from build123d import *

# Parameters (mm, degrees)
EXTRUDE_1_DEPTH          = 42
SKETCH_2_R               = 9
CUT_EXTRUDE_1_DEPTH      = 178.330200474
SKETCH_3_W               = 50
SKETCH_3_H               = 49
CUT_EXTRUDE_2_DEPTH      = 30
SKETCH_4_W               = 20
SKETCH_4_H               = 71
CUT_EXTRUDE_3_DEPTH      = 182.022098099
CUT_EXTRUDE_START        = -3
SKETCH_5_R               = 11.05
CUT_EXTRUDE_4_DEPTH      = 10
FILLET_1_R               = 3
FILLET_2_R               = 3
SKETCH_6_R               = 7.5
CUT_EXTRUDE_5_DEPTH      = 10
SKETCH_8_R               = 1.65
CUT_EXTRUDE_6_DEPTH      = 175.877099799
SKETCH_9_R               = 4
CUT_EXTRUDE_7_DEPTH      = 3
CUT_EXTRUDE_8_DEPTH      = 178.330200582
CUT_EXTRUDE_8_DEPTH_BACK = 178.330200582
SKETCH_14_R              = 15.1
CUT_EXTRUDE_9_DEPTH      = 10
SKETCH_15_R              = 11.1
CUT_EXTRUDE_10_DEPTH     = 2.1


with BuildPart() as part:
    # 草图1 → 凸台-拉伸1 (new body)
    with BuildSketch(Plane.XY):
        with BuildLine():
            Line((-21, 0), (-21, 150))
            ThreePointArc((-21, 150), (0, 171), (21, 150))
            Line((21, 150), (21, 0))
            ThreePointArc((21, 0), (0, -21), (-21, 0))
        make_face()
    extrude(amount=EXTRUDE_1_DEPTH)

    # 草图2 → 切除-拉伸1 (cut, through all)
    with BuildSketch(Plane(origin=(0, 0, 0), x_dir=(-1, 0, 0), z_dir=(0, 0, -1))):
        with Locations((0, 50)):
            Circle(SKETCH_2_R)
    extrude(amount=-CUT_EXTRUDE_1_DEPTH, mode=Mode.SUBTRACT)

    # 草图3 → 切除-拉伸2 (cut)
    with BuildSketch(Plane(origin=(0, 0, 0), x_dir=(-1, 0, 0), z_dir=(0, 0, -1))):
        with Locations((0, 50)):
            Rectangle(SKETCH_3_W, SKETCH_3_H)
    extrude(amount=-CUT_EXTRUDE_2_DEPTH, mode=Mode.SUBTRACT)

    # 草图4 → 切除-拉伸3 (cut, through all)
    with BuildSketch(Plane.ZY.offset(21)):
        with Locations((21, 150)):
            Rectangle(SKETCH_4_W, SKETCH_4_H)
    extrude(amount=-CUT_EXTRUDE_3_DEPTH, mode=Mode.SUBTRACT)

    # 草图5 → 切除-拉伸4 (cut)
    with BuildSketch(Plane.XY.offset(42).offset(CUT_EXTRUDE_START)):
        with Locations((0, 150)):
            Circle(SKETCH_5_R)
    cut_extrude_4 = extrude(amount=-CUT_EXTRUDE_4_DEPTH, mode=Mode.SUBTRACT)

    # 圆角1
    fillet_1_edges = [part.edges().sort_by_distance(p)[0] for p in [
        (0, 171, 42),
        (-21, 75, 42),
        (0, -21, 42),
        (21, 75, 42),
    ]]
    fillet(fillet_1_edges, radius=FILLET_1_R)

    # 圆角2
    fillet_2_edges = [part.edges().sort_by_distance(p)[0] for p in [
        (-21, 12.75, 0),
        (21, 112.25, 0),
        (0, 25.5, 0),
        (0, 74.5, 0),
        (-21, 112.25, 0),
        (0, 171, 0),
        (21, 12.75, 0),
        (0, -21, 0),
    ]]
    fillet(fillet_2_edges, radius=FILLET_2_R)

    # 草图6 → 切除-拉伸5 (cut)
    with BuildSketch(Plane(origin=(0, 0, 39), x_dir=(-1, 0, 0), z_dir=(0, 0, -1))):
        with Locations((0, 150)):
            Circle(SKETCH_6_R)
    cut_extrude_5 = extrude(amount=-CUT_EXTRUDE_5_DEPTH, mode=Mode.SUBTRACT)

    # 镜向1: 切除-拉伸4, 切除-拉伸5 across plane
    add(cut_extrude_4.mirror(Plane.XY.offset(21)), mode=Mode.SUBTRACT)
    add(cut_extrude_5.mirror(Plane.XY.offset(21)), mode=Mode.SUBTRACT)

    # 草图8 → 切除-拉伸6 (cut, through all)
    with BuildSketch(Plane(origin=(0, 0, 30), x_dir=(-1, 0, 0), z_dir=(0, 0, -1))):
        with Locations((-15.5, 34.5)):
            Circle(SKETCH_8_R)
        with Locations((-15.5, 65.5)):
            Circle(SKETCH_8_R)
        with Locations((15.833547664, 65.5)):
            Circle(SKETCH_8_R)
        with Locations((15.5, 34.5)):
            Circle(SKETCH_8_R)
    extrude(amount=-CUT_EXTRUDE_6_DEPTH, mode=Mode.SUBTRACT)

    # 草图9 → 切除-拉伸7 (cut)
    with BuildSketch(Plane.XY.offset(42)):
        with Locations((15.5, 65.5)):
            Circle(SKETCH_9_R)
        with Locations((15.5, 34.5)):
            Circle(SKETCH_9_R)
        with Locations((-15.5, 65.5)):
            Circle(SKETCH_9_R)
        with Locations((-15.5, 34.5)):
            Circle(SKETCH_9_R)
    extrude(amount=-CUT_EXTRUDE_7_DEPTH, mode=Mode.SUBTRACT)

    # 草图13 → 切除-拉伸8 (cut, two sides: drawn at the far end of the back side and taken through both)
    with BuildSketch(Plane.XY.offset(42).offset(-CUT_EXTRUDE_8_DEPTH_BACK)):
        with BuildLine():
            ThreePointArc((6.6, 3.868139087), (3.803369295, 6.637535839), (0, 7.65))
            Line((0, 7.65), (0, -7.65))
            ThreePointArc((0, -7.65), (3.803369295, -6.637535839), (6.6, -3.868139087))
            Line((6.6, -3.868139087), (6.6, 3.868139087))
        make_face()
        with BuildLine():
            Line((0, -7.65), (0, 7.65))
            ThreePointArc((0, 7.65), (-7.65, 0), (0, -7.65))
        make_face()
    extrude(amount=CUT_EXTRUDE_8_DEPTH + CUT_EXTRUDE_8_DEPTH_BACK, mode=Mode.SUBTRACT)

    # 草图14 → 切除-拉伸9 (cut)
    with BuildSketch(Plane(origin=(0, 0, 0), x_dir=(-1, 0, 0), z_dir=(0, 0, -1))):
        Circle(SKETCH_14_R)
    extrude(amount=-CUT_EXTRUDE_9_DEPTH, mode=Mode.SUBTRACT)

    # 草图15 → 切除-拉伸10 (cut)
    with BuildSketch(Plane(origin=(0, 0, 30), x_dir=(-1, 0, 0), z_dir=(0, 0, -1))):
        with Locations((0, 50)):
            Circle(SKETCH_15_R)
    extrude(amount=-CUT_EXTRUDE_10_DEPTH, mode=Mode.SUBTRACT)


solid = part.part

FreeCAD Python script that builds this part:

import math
import FreeCAD as App
import Part
import Sketcher
Q = App.Units.Quantity


def edges_at(feature, points):
    """Names of the edges that pass closest to the given points."""
    edges = feature.Shape.Edges
    near = lambda p: min(range(len(edges)), key=lambda i: edges[i].distToShape(Part.Vertex(*p))[0])
    return sorted({f"Edge{near(p) + 1}" for p in points})


def add_polygon(sketch, points):
    """Adds a closed chain of lines whose ends are joined by coincident constraints."""
    first, n = sketch.GeometryCount, len(points)
    for a, b in zip(points, points[1:] + points[:1]):
        sketch.addGeometry(Part.LineSegment(App.Vector(*a, 0), App.Vector(*b, 0)), False)
    for i in range(n):
        sketch.addConstraint(Sketcher.Constraint("Coincident", first + i, 2, first + (i + 1) % n, 1))

doc = App.newDocument("Part")
body = doc.addObject("PartDesign::Body", "Body")

sketch1 = body.newObject("Sketcher::SketchObject", "Sketch")
sketch1.AttachmentSupport = (doc.getObject("XY_Plane"), [""])
sketch1.MapMode = "FlatFace"
sketch1.addGeometry([
    Part.LineSegment(App.Vector(-21, 150, 0), App.Vector(-21, 0, 0)),
    Part.ArcOfCircle(Part.Circle(App.Vector(0, 0, 0), App.Vector(0, 0, 1), 21), math.radians(180), math.radians(360)),
    Part.LineSegment(App.Vector(21, 0, 0), App.Vector(21, 150, 0)),
    Part.ArcOfCircle(Part.Circle(App.Vector(0, 150, 0), App.Vector(0, 0, 1), 21), math.radians(0), math.radians(180)),
], False)
sketch1.addConstraint([
    Sketcher.Constraint("Tangent", 0, 2, 1, 1),
    Sketcher.Constraint("Tangent", 1, 2, 2, 1),
    Sketcher.Constraint("Tangent", 2, 2, 3, 1),
    Sketcher.Constraint("Tangent", 3, 2, 0, 1),
    Sketcher.Constraint("Vertical", 0),
    Sketcher.Constraint("Vertical", 2),
    Sketcher.Constraint("Coincident", 1, 3, -1, 1),
    Sketcher.Constraint("Radius", 1, Q("21 mm")),
    Sketcher.Constraint("DistanceY", 0, 2, 0, 1, Q("150 mm")),
])
pad1 = body.newObject("PartDesign::Pad", "Pad")
pad1.Profile = sketch1
pad1.Length = 42

sketch2 = body.newObject("Sketcher::SketchObject", "Sketch001")
sketch2.AttachmentSupport = (doc.getObject("XY_Plane"), [""])
sketch2.MapMode = "FlatFace"
sketch2.addGeometry(Part.Circle(App.Vector(0, 50, 0), App.Vector(0, 0, 1), 9), False)
sketch2.addConstraint([
    Sketcher.Constraint("PointOnObject", 0, 3, -2),
    Sketcher.Constraint("Diameter", 0, Q("18 mm")),
    Sketcher.Constraint("DistanceY", -1, 1, 0, 3, Q("50 mm")),
])
pocket1 = body.newObject("PartDesign::Pocket", "Pocket")
pocket1.Profile = sketch2
pocket1.Type = "ThroughAll"
pocket1.Reversed = True

sketch3 = body.newObject("Sketcher::SketchObject", "Sketch002")
sketch3.AttachmentSupport = (doc.getObject("XY_Plane"), [""])
sketch3.MapMode = "FlatFace"
add_polygon(sketch3, [(25, 74.5), (25, 25.5), (-25, 25.5), (-25, 74.5)])
sketch3.addConstraint([
    Sketcher.Constraint("Vertical", 0),
    Sketcher.Constraint("Horizontal", 1),
    Sketcher.Constraint("Vertical", 2),
    Sketcher.Constraint("Horizontal", 3),
    Sketcher.Constraint("DistanceX", 1, 2, 1, 1, Q("50 mm")),
    Sketcher.Constraint("DistanceY", 0, 2, 0, 1, Q("49 mm")),
    Sketcher.Constraint("DistanceX", -1, 1, 0, 2, Q("25 mm")),
    Sketcher.Constraint("DistanceY", -1, 1, 0, 2, Q("25.5 mm")),
])
pocket2 = body.newObject("PartDesign::Pocket", "Pocket001")
pocket2.Profile = sketch3
pocket2.Length = 30
pocket2.Reversed = True

sketch4 = body.newObject("Sketcher::SketchObject", "Sketch003")
sketch4.AttachmentSupport = (doc.getObject("YZ_Plane"), [""])
sketch4.MapMode = "FlatFace"
sketch4.AttachmentOffset = App.Placement(App.Vector(0, 0, -21), App.Rotation())
add_polygon(sketch4, [(185.5, 11), (114.5, 11), (114.5, 31), (185.5, 31)])
sketch4.addConstraint([
    Sketcher.Constraint("Horizontal", 0),
    Sketcher.Constraint("Vertical", 1),
    Sketcher.Constraint("Horizontal", 2),
    Sketcher.Constraint("Vertical", 3),
    Sketcher.Constraint("DistanceX", 0, 2, 0, 1, Q("71 mm")),
    Sketcher.Constraint("DistanceY", 1, 1, 1, 2, Q("20 mm")),
    Sketcher.Constraint("DistanceY", -1, 1, 0, 2, Q("11 mm")),
    Sketcher.Constraint("DistanceX", -1, 1, 0, 2, Q("114.5 mm")),
])
pocket3 = body.newObject("PartDesign::Pocket", "Pocket002")
pocket3.Profile = sketch4
pocket3.Type = "ThroughAll"
pocket3.Reversed = True

sketch5 = body.newObject("Sketcher::SketchObject", "Sketch004")
sketch5.AttachmentSupport = (doc.getObject("XY_Plane"), [""])
sketch5.MapMode = "FlatFace"
sketch5.AttachmentOffset = App.Placement(App.Vector(0, 0, 39), App.Rotation())
sketch5.addGeometry(Part.Circle(App.Vector(0, 150, 0), App.Vector(0, 0, 1), 11.05), False)
sketch5.addConstraint([
    Sketcher.Constraint("PointOnObject", 0, 3, -2),
    Sketcher.Constraint("Diameter", 0, Q("22.1 mm")),
    Sketcher.Constraint("DistanceY", -1, 1, 0, 3, Q("150 mm")),
])
pocket4 = body.newObject("PartDesign::Pocket", "Pocket003")
pocket4.Profile = sketch5
pocket4.Length = 10
doc.recompute()

fillet = body.newObject("PartDesign::Fillet", "Fillet")
fillet.Base = (pocket4, edges_at(pocket4, [
    (0, 171, 42),
    (-21, 75, 42),
    (0, -21, 42),
    (21, 75, 42),
]))
fillet.Radius = 3
doc.recompute()

fillet2 = body.newObject("PartDesign::Fillet", "Fillet001")
fillet2.Base = (fillet, edges_at(fillet, [
    (-21, 12.75, 0),
    (21, 112.25, 0),
    (0, 25.5, 0),
    (0, 74.5, 0),
    (-21, 112.25, 0),
    (0, 171, 0),
    (21, 12.75, 0),
    (0, -21, 0),
]))
fillet2.Radius = 3

sketch6 = body.newObject("Sketcher::SketchObject", "Sketch005")
sketch6.AttachmentSupport = (doc.getObject("XY_Plane"), [""])
sketch6.MapMode = "FlatFace"
sketch6.AttachmentOffset = App.Placement(App.Vector(0, 0, 39), App.Rotation())
sketch6.addGeometry(Part.Circle(App.Vector(0, 150, 0), App.Vector(0, 0, 1), 7.5), False)
sketch6.addConstraint([
    Sketcher.Constraint("PointOnObject", 0, 3, -2),
    Sketcher.Constraint("Diameter", 0, Q("15 mm")),
    Sketcher.Constraint("DistanceY", -1, 1, 0, 3, Q("150 mm")),
])
pocket5 = body.newObject("PartDesign::Pocket", "Pocket004")
pocket5.Profile = sketch6
pocket5.Length = 10
pocket5.Reversed = True
doc.recompute()

datumplane = body.newObject("PartDesign::Plane", "DatumPlane")
datumplane.AttachmentSupport = (doc.getObject("XY_Plane"), [""])
datumplane.MapMode = "FlatFace"
datumplane.AttachmentOffset = App.Placement(App.Vector(0, 0, 21), App.Rotation())
mirrored = body.newObject("PartDesign::Mirrored", "Mirrored")
mirrored.Originals = [pocket4, pocket5]
mirrored.MirrorPlane = (datumplane, [""])
body.Tip = mirrored

sketch7 = body.newObject("Sketcher::SketchObject", "Sketch006")
sketch7.AttachmentSupport = (doc.getObject("XY_Plane"), [""])
sketch7.MapMode = "FlatFace"
sketch7.AttachmentOffset = App.Placement(App.Vector(0, 0, 30), App.Rotation())
sketch7.addGeometry([
    Part.Circle(App.Vector(15.5, 34.5, 0), App.Vector(0, 0, 1), 1.65),
    Part.Circle(App.Vector(15.5, 65.5, 0), App.Vector(0, 0, 1), 1.65),
    Part.Circle(App.Vector(-15.833548, 65.5, 0), App.Vector(0, 0, 1), 1.65),
    Part.Circle(App.Vector(-15.5, 34.5, 0), App.Vector(0, 0, 1), 1.65),
], False)
sketch7.addConstraint([
    Sketcher.Constraint("Equal", 0, 1),
    Sketcher.Constraint("Equal", 1, 2),
    Sketcher.Constraint("Equal", 2, 3),
    Sketcher.Constraint("Symmetric", 0, 3, 3, 3, -2),
    Sketcher.Constraint("Horizontal", 1, 3, 2, 3),
    Sketcher.Constraint("Vertical", 0, 3, 1, 3),
    Sketcher.Constraint("Diameter", 0, Q("3.3 mm")),
    Sketcher.Constraint("DistanceY", 0, 3, 1, 3, Q("31 mm")),
    Sketcher.Constraint("DistanceX", 3, 3, 0, 3, Q("31 mm")),
    Sketcher.Constraint("DistanceY", -1, 1, 0, 3, Q("34.5 mm")),
    Sketcher.Constraint("DistanceX", 2, 3, -1, 1, Q("15.833548 mm")),
])
pocket6 = body.newObject("PartDesign::Pocket", "Pocket005")
pocket6.Profile = sketch7
pocket6.Type = "ThroughAll"
pocket6.Reversed = True

sketch8 = body.newObject("Sketcher::SketchObject", "Sketch007")
sketch8.AttachmentSupport = (doc.getObject("XY_Plane"), [""])
sketch8.MapMode = "FlatFace"
sketch8.AttachmentOffset = App.Placement(App.Vector(0, 0, 42), App.Rotation())
sketch8.addGeometry([
    Part.Circle(App.Vector(15.5, 65.5, 0), App.Vector(0, 0, 1), 4),
    Part.Circle(App.Vector(15.5, 34.5, 0), App.Vector(0, 0, 1), 4),
    Part.Circle(App.Vector(-15.5, 65.5, 0), App.Vector(0, 0, 1), 4),
    Part.Circle(App.Vector(-15.5, 34.5, 0), App.Vector(0, 0, 1), 4),
], False)
sketch8.addConstraint([
    Sketcher.Constraint("Equal", 0, 1),
    Sketcher.Constraint("Equal", 1, 2),
    Sketcher.Constraint("Equal", 2, 3),
    Sketcher.Constraint("Symmetric", 0, 3, 2, 3, -2),
    Sketcher.Constraint("Symmetric", 1, 3, 3, 3, -2),
    Sketcher.Constraint("Vertical", 0, 3, 1, 3),
    Sketcher.Constraint("Diameter", 0, Q("8 mm")),
    Sketcher.Constraint("DistanceY", 1, 3, 0, 3, Q("31 mm")),
    Sketcher.Constraint("DistanceX", 2, 3, 0, 3, Q("31 mm")),
    Sketcher.Constraint("DistanceY", -1, 1, 0, 3, Q("65.5 mm")),
])
pocket7 = body.newObject("PartDesign::Pocket", "Pocket006")
pocket7.Profile = sketch8
pocket7.Length = 3

sketch9 = body.newObject("Sketcher::SketchObject", "Sketch008")
sketch9.AttachmentSupport = (doc.getObject("XY_Plane"), [""])
sketch9.MapMode = "FlatFace"
sketch9.AttachmentOffset = App.Placement(App.Vector(0, 0, 42), App.Rotation())
sketch9.addGeometry([
    Part.ArcOfCircle(Part.Circle(App.Vector(0, 0, 0), App.Vector(0, 0, 1), 7.65), math.radians(30.373786), math.radians(90)),
    Part.ArcOfCircle(Part.Circle(App.Vector(0, 0, 0), App.Vector(0, 0, 1), 7.65), math.radians(90), math.radians(270)),
    Part.ArcOfCircle(Part.Circle(App.Vector(0, 0, 0), App.Vector(0, 0, 1), 7.65), math.radians(-90), math.radians(-30.373786)),
    Part.LineSegment(App.Vector(6.6, -3.868139, 0), App.Vector(6.6, 3.868139, 0)),
], False)
sketch9.addConstraint([
    Sketcher.Constraint("Tangent", 0, 2, 1, 1),
    Sketcher.Constraint("Tangent", 1, 2, 2, 1),
    Sketcher.Constraint("Coincident", 2, 2, 3, 1),
    Sketcher.Constraint("Coincident", 3, 2, 0, 1),
    Sketcher.Constraint("Vertical", 3),
    Sketcher.Constraint("Coincident", 0, 3, -1, 1),
    Sketcher.Constraint("Equal", 0, 1),
    Sketcher.Constraint("Equal", 1, 2),
    Sketcher.Constraint("PointOnObject", 0, 2, -2),
    Sketcher.Constraint("PointOnObject", 1, 2, -2),
    Sketcher.Constraint("Radius", 0, Q("7.65 mm")),
    Sketcher.Constraint("DistanceX", -1, 1, 2, 2, Q("6.6 mm")),
])
pocket8 = body.newObject("PartDesign::Pocket", "Pocket007")
pocket8.Profile = sketch9
pocket8.Type = "ThroughAll"
pocket8.Midplane = True

sketch10 = body.newObject("Sketcher::SketchObject", "Sketch009")
sketch10.AttachmentSupport = (doc.getObject("XY_Plane"), [""])
sketch10.MapMode = "FlatFace"
sketch10.addGeometry(Part.Circle(App.Vector(0, 0, 0), App.Vector(0, 0, 1), 15.1), False)
sketch10.addConstraint([
    Sketcher.Constraint("Coincident", 0, 3, -1, 1),
    Sketcher.Constraint("Diameter", 0, Q("30.2 mm")),
])
pocket9 = body.newObject("PartDesign::Pocket", "Pocket008")
pocket9.Profile = sketch10
pocket9.Length = 10
pocket9.Reversed = True

sketch11 = body.newObject("Sketcher::SketchObject", "Sketch010")
sketch11.AttachmentSupport = (doc.getObject("XY_Plane"), [""])
sketch11.MapMode = "FlatFace"
sketch11.AttachmentOffset = App.Placement(App.Vector(0, 0, 30), App.Rotation())
sketch11.addGeometry(Part.Circle(App.Vector(0, 50, 0), App.Vector(0, 0, 1), 11.1), False)
sketch11.addConstraint([
    Sketcher.Constraint("PointOnObject", 0, 3, -2),
    Sketcher.Constraint("Diameter", 0, Q("22.2 mm")),
    Sketcher.Constraint("DistanceY", -1, 1, 0, 3, Q("50 mm")),
])
pocket10 = body.newObject("PartDesign::Pocket", "Pocket009")
pocket10.Profile = sketch11
pocket10.Length = 2.1
pocket10.Reversed = True

doc.recompute()
